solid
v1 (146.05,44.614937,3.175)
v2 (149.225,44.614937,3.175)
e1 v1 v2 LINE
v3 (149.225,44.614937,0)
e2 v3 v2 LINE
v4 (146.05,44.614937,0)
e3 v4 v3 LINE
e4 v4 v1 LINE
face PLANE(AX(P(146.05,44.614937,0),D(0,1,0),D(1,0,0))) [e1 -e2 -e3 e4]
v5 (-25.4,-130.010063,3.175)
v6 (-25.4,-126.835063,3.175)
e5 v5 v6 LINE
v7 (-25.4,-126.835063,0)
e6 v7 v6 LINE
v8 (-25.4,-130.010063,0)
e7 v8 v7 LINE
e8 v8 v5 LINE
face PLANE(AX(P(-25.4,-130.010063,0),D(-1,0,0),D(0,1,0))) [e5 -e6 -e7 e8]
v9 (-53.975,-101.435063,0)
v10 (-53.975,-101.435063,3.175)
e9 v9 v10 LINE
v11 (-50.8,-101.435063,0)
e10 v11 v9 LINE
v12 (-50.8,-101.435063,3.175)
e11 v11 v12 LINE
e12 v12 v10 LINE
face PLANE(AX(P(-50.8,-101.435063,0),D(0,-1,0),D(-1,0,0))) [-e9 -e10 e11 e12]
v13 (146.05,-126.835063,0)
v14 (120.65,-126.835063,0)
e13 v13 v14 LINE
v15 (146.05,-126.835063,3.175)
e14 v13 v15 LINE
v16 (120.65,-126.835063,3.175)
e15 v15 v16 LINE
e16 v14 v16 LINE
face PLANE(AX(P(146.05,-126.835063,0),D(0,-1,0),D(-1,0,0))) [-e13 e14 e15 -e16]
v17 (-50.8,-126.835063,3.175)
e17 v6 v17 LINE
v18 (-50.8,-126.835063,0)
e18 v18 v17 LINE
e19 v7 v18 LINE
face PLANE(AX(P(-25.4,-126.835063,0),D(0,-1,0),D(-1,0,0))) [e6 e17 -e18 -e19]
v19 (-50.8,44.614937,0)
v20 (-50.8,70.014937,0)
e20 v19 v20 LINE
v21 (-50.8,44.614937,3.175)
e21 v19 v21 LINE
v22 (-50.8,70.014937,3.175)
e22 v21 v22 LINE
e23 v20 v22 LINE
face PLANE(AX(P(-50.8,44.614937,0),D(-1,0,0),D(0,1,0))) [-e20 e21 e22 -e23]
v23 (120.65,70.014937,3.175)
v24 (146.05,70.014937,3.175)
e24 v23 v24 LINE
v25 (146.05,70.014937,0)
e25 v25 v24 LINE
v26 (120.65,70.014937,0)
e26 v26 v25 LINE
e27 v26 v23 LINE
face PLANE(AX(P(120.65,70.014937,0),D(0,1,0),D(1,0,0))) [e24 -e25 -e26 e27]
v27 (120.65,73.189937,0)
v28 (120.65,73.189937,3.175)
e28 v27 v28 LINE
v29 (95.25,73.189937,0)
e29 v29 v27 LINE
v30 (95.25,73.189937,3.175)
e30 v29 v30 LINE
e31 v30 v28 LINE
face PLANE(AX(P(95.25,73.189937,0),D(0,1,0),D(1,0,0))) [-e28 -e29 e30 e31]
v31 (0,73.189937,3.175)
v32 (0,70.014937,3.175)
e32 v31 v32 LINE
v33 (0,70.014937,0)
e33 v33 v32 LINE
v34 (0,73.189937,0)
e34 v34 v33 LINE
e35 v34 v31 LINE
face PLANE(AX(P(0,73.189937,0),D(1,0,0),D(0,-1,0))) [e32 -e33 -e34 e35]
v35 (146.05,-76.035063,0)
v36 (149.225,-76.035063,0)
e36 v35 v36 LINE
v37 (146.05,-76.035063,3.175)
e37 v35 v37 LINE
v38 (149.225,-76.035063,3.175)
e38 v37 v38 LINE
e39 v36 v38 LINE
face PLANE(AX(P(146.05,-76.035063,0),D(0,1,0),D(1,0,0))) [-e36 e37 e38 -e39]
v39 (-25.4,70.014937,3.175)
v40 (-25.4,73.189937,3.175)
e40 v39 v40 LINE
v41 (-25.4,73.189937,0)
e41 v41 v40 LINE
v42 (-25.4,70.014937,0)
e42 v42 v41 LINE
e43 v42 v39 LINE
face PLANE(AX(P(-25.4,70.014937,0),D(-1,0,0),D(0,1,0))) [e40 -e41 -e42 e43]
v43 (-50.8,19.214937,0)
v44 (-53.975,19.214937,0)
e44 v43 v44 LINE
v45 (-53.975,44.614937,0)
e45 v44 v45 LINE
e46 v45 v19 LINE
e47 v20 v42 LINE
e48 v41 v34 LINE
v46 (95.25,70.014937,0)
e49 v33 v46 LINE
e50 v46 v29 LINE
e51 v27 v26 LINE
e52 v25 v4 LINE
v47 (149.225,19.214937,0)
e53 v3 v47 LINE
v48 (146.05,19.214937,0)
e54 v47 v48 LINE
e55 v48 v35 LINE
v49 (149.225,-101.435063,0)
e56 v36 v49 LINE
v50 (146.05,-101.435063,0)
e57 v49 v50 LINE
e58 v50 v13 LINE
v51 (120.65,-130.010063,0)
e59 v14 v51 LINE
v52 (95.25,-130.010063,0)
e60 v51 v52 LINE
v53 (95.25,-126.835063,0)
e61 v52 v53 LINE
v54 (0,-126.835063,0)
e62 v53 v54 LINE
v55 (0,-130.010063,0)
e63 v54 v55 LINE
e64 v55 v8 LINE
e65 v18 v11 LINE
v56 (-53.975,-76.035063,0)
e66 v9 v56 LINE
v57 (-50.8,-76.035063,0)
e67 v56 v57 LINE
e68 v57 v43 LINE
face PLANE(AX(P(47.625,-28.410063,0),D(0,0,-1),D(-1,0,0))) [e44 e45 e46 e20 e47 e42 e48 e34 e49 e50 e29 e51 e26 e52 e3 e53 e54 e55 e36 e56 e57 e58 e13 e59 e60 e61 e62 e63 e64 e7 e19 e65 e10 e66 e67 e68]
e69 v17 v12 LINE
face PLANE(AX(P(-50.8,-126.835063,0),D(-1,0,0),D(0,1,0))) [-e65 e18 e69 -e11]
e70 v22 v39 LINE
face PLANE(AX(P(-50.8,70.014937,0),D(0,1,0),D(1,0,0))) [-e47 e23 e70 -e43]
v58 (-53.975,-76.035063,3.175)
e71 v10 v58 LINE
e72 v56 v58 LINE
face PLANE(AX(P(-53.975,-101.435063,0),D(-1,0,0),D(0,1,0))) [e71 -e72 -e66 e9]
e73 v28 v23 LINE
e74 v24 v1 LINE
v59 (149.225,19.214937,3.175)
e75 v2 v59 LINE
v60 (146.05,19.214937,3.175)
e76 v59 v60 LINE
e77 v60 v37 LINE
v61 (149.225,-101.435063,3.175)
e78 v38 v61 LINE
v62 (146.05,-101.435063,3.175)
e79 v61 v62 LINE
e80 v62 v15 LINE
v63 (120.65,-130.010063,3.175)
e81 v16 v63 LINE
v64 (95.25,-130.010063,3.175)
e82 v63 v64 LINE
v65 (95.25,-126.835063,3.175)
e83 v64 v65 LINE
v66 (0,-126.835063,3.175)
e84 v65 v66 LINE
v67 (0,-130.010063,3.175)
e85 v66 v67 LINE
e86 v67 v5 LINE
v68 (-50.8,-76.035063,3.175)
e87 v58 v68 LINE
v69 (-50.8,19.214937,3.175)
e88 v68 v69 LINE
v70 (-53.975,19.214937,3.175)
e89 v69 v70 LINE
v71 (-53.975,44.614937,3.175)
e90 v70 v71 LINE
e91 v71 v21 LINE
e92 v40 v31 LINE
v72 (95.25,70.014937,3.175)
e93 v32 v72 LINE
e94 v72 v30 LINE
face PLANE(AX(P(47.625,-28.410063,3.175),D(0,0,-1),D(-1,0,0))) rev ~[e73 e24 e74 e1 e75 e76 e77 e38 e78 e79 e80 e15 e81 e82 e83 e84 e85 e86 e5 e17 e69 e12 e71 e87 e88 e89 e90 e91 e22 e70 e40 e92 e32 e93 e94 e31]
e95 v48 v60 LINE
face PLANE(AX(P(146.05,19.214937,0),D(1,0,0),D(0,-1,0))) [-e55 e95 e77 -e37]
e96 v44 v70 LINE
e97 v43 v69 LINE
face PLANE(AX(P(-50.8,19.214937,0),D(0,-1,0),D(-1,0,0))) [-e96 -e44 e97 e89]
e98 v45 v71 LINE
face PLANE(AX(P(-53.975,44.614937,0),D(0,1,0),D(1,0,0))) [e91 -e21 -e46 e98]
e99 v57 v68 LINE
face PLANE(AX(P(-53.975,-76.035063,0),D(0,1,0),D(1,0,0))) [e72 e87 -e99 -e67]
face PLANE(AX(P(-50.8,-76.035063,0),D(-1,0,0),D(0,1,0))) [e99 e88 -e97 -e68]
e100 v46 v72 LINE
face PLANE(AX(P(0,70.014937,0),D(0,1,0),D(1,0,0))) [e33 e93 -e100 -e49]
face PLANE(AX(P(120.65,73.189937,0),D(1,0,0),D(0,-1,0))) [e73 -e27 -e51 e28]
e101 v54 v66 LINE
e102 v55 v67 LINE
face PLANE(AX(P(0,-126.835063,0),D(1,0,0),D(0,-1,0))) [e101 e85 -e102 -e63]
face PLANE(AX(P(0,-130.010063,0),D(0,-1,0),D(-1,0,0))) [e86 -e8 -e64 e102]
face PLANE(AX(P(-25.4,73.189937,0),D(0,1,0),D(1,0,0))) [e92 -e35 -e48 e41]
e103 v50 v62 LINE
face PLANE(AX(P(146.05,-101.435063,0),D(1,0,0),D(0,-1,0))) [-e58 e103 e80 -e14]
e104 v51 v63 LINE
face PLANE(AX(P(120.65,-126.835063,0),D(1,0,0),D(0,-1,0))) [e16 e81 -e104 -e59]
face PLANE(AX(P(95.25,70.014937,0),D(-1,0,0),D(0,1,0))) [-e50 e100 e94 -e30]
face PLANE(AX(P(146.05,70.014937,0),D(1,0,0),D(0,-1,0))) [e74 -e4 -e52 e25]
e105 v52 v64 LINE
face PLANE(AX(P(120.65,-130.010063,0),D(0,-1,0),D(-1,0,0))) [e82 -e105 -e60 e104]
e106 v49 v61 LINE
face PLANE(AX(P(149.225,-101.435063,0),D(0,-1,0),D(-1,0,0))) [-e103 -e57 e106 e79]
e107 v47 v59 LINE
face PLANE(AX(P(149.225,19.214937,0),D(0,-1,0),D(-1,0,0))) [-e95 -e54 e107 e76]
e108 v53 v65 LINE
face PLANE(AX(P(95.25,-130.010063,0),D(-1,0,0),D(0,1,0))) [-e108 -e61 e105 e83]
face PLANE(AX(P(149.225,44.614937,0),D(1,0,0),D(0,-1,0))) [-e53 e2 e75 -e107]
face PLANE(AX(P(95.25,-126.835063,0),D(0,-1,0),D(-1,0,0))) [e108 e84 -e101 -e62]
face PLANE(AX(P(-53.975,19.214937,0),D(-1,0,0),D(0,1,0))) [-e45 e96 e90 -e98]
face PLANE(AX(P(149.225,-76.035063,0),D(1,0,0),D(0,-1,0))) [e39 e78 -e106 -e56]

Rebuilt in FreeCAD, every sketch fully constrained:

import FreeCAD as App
import Part
import Sketcher
from FreeCAD import Vector
Q = App.Units.Quantity

doc = App.newDocument("Part")
body = doc.addObject("PartDesign::Body", "Body")

# Sketch on XY plane
sketch1 = doc.addObject("Sketcher::SketchObject", "Sketch")
body.addObject(sketch1)
sketch1.AttachmentSupport = (doc.XY_Plane, [""])
sketch1.MapMode = "FlatFace"
sketch1.addGeometry([
    Part.LineSegment(Vector(-25.4, 70.014937, 0), Vector(-50.8, 70.014937, 0)),  # 0
    Part.LineSegment(Vector(-50.8, 70.014937, 0), Vector(-50.8, 44.614937, 0)),  # 1
    Part.LineSegment(Vector(-50.8, 44.614937, 0), Vector(-53.975, 44.614937, 0)),  # 2
    Part.LineSegment(Vector(-53.975, 44.614937, 0), Vector(-53.975, 19.214937, 0)),  # 3
    Part.LineSegment(Vector(-53.975, 19.214937, 0), Vector(-50.8, 19.214937, 0)),  # 4
    Part.LineSegment(Vector(-50.8, 19.214937, 0), Vector(-50.8, -76.035063, 0)),  # 5
    Part.LineSegment(Vector(-50.8, -76.035063, 0), Vector(-53.975, -76.035063, 0)),  # 6
    Part.LineSegment(Vector(-53.975, -76.035063, 0), Vector(-53.975, -101.435063, 0)),  # 7
    Part.LineSegment(Vector(-53.975, -101.435063, 0), Vector(-50.8, -101.435063, 0)),  # 8
    Part.LineSegment(Vector(-50.8, -101.435063, 0), Vector(-50.8, -126.835063, 0)),  # 9
    Part.LineSegment(Vector(-50.8, -126.835063, 0), Vector(-25.4, -126.835063, 0)),  # 10
    Part.LineSegment(Vector(-25.4, -126.835063, 0), Vector(-25.4, -130.010063, 0)),  # 11
    Part.LineSegment(Vector(-25.4, -130.010063, 0), Vector(0, -130.010063, 0)),  # 12
    Part.LineSegment(Vector(0, -130.010063, 0), Vector(0, -126.835063, 0)),  # 13
    Part.LineSegment(Vector(0, -126.835063, 0), Vector(95.25, -126.835063, 0)),  # 14
    Part.LineSegment(Vector(95.25, -126.835063, 0), Vector(95.25, -130.010063, 0)),  # 15
    Part.LineSegment(Vector(95.25, -130.010063, 0), Vector(120.65, -130.010063, 0)),  # 16
    Part.LineSegment(Vector(120.65, -130.010063, 0), Vector(120.65, -126.835063, 0)),  # 17
    Part.LineSegment(Vector(120.65, -126.835063, 0), Vector(146.05, -126.835063, 0)),  # 18
    Part.LineSegment(Vector(146.05, -126.835063, 0), Vector(146.05, -101.435063, 0)),  # 19
    Part.LineSegment(Vector(146.05, -101.435063, 0), Vector(149.225, -101.435063, 0)),  # 20
    Part.LineSegment(Vector(149.225, -101.435063, 0), Vector(149.225, -76.035063, 0)),  # 21
    Part.LineSegment(Vector(149.225, -76.035063, 0), Vector(146.05, -76.035063, 0)),  # 22
    Part.LineSegment(Vector(146.05, -76.035063, 0), Vector(146.05, 19.214937, 0)),  # 23
    Part.LineSegment(Vector(146.05, 19.214937, 0), Vector(149.225, 19.214937, 0)),  # 24
    Part.LineSegment(Vector(149.225, 19.214937, 0), Vector(149.225, 44.614937, 0)),  # 25
    Part.LineSegment(Vector(149.225, 44.614937, 0), Vector(146.05, 44.614937, 0)),  # 26
    Part.LineSegment(Vector(146.05, 44.614937, 0), Vector(146.05, 70.014937, 0)),  # 27
    Part.LineSegment(Vector(146.05, 70.014937, 0), Vector(120.65, 70.014937, 0)),  # 28
    Part.LineSegment(Vector(120.65, 70.014937, 0), Vector(120.65, 73.189937, 0)),  # 29
    Part.LineSegment(Vector(120.65, 73.189937, 0), Vector(95.25, 73.189937, 0)),  # 30
    Part.LineSegment(Vector(95.25, 73.189937, 0), Vector(95.25, 70.014937, 0)),  # 31
    Part.LineSegment(Vector(95.25, 70.014937, 0), Vector(0, 70.014937, 0)),  # 32
    Part.LineSegment(Vector(0, 70.014937, 0), Vector(0, 73.189937, 0)),  # 33
    Part.LineSegment(Vector(0, 73.189937, 0), Vector(-25.4, 73.189937, 0)),  # 34
    Part.LineSegment(Vector(-25.4, 73.189937, 0), Vector(-25.4, 70.014937, 0)),  # 35
], False)
sketch1.addConstraint([
    Sketcher.Constraint("Coincident", 0, 2, 1, 1),
    Sketcher.Constraint("Coincident", 1, 2, 2, 1),
    Sketcher.Constraint("Coincident", 2, 2, 3, 1),
    Sketcher.Constraint("Coincident", 3, 2, 4, 1),
    Sketcher.Constraint("Coincident", 4, 2, 5, 1),
    Sketcher.Constraint("Coincident", 5, 2, 6, 1),
    Sketcher.Constraint("Coincident", 6, 2, 7, 1),
    Sketcher.Constraint("Coincident", 7, 2, 8, 1),
    Sketcher.Constraint("Coincident", 8, 2, 9, 1),
    Sketcher.Constraint("Coincident", 9, 2, 10, 1),
    Sketcher.Constraint("Coincident", 10, 2, 11, 1),
    Sketcher.Constraint("Coincident", 11, 2, 12, 1),
    Sketcher.Constraint("Coincident", 12, 2, 13, 1),
    Sketcher.Constraint("Coincident", 13, 2, 14, 1),
    Sketcher.Constraint("Coincident", 14, 2, 15, 1),
    Sketcher.Constraint("Coincident", 15, 2, 16, 1),
    Sketcher.Constraint("Coincident", 16, 2, 17, 1),
    Sketcher.Constraint("Coincident", 17, 2, 18, 1),
    Sketcher.Constraint("Coincident", 18, 2, 19, 1),
    Sketcher.Constraint("Coincident", 19, 2, 20, 1),
    Sketcher.Constraint("Coincident", 20, 2, 21, 1),
    Sketcher.Constraint("Coincident", 21, 2, 22, 1),
    Sketcher.Constraint("Coincident", 22, 2, 23, 1),
    Sketcher.Constraint("Coincident", 23, 2, 24, 1),
    Sketcher.Constraint("Coincident", 24, 2, 25, 1),
    Sketcher.Constraint("Coincident", 25, 2, 26, 1),
    Sketcher.Constraint("Coincident", 26, 2, 27, 1),
    Sketcher.Constraint("Coincident", 27, 2, 28, 1),
    Sketcher.Constraint("Coincident", 28, 2, 29, 1),
    Sketcher.Constraint("Coincident", 29, 2, 30, 1),
    Sketcher.Constraint("Coincident", 30, 2, 31, 1),
    Sketcher.Constraint("Coincident", 31, 2, 32, 1),
    Sketcher.Constraint("Coincident", 32, 2, 33, 1),
    Sketcher.Constraint("Coincident", 33, 2, 34, 1),
    Sketcher.Constraint("Coincident", 34, 2, 35, 1),
    Sketcher.Constraint("Coincident", 35, 2, 0, 1),
    Sketcher.Constraint("Horizontal", 0),
    Sketcher.Constraint("Vertical", 1),
    Sketcher.Constraint("Horizontal", 2),
    Sketcher.Constraint("Vertical", 3),
    Sketcher.Constraint("Horizontal", 4),
    Sketcher.Constraint("Vertical", 5),
    Sketcher.Constraint("Horizontal", 6),
    Sketcher.Constraint("Vertical", 7),
    Sketcher.Constraint("Horizontal", 8),
    Sketcher.Constraint("Vertical", 9),
    Sketcher.Constraint("Horizontal", 10),
    Sketcher.Constraint("Vertical", 11),
    Sketcher.Constraint("Horizontal", 12),
    Sketcher.Constraint("Vertical", 13),
    Sketcher.Constraint("Horizontal", 14),
    Sketcher.Constraint("Vertical", 15),
    Sketcher.Constraint("Horizontal", 16),
    Sketcher.Constraint("Vertical", 17),
    Sketcher.Constraint("Horizontal", 18),
    Sketcher.Constraint("Vertical", 19),
    Sketcher.Constraint("Horizontal", 20),
    Sketcher.Constraint("Vertical", 21),
    Sketcher.Constraint("Horizontal", 22),
    Sketcher.Constraint("Vertical", 23),
    Sketcher.Constraint("Horizontal", 24),
    Sketcher.Constraint("Vertical", 25),
    Sketcher.Constraint("Horizontal", 26),
    Sketcher.Constraint("Vertical", 27),
    Sketcher.Constraint("Horizontal", 28),
    Sketcher.Constraint("Vertical", 29),
    Sketcher.Constraint("Horizontal", 30),
    Sketcher.Constraint("Vertical", 31),
    Sketcher.Constraint("Horizontal", 32),
    Sketcher.Constraint("Vertical", 33),
    Sketcher.Constraint("Horizontal", 34),
    Sketcher.Constraint("Vertical", 35),
    Sketcher.Constraint("PointOnObject", 12, 2, -2),
    Sketcher.Constraint("PointOnObject", 32, 2, -2),
    Sketcher.Constraint("Horizontal", 10, 2, 13, 2),
    Sketcher.Constraint("Horizontal", 12, 2, 15, 2),
    Sketcher.Constraint("Horizontal", 14, 2, 17, 2),
    Sketcher.Constraint("Horizontal", 8, 2, 19, 2),
    Sketcher.Constraint("Horizontal", 6, 2, 21, 2),
    Sketcher.Constraint("Horizontal", 4, 2, 23, 2),
    Sketcher.Constraint("Horizontal", 2, 2, 25, 2),
    Sketcher.Constraint("Horizontal", 0, 2, 27, 2),
    Sketcher.Constraint("Horizontal", 28, 2, 31, 2),
    Sketcher.Constraint("Horizontal", 30, 2, 33, 2),
    Sketcher.Constraint("Vertical", 1, 2, 4, 2),
    Sketcher.Constraint("Vertical", 3, 2, 6, 2),
    Sketcher.Constraint("Vertical", 5, 2, 8, 2),
    Sketcher.Constraint("Vertical", 19, 2, 22, 2),
    Sketcher.Constraint("Vertical", 21, 2, 24, 2),
    Sketcher.Constraint("Vertical", 23, 2, 26, 2),
    Sketcher.Constraint("Vertical", 17, 2, 28, 2),
    Sketcher.Constraint("Vertical", 15, 2, 30, 2),
    Sketcher.Constraint("Vertical", 11, 2, 34, 2),
    Sketcher.Constraint("Equal", 10, 12),
    Sketcher.Constraint("Equal", 12, 16),
    Sketcher.Constraint("Equal", 16, 18),
    Sketcher.Constraint("Equal", 8, 20),
    Sketcher.Constraint("Equal", 34, 1),
    Sketcher.Constraint("Equal", 1, 3),
    Sketcher.Constraint("Equal", 32, 5),
    Sketcher.Constraint("Equal", 3, 7),
    Sketcher.Constraint("Equal", 7, 9),
    Sketcher.Constraint("Equal", 26, 11),
    Sketcher.Constraint("Equal", 17, 29),
    Sketcher.Constraint("DistanceX", 0, 2, 0, 1, Q("1 in")),
    Sketcher.Constraint("DistanceX", 14, 1, 14, 2, Q("3.75 in")),
    Sketcher.Constraint("DistanceX", 2, 2, 2, 1, Q("0.125 in")),
    Sketcher.Constraint("DistanceY", -1, 1, 0, 2, 70.014937),
])
pad1 = doc.addObject("PartDesign::Pad", "Pad")
body.addObject(pad1)
pad1.Profile = sketch1
pad1.Length = Q("0.125 in")

doc.recompute()
